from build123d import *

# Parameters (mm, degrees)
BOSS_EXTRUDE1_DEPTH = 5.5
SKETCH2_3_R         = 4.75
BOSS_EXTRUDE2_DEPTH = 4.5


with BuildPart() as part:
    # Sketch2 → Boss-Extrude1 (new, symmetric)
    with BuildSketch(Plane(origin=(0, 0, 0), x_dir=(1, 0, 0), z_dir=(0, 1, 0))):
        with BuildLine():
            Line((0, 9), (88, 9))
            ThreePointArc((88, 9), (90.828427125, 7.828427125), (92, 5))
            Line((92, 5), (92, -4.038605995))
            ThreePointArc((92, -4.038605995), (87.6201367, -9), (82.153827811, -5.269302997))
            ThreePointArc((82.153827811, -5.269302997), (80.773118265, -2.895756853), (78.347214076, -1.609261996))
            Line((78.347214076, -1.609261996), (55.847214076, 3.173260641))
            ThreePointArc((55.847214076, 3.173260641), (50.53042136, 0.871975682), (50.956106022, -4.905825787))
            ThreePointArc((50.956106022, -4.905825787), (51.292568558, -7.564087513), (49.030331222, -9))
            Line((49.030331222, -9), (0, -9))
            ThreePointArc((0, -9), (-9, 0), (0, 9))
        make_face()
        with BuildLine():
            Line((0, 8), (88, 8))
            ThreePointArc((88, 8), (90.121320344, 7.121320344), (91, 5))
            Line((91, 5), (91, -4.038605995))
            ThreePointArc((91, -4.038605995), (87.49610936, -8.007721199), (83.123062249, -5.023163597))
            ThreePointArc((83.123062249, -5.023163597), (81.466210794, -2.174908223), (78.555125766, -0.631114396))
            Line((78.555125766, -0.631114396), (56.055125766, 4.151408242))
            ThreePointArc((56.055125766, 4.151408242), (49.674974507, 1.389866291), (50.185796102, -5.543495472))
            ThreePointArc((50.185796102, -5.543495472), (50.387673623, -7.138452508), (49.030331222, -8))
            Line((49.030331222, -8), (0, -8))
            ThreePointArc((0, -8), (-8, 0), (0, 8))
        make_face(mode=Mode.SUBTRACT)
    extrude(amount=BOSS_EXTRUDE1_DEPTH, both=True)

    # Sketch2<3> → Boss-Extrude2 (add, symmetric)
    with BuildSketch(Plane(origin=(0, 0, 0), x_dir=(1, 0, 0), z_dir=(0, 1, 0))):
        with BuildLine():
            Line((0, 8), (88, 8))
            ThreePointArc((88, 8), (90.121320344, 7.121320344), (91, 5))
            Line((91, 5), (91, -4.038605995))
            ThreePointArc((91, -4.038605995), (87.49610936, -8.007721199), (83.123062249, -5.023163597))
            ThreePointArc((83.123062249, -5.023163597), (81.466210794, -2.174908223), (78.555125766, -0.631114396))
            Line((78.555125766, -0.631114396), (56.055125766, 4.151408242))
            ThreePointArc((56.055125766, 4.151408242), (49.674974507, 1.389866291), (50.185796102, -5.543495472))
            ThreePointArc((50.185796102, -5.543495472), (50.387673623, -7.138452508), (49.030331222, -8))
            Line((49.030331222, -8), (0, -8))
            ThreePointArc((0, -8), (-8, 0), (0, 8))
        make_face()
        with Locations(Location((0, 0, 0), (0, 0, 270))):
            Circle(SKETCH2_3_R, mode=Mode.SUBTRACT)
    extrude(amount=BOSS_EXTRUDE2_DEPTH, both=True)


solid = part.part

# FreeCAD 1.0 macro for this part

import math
import FreeCAD as App
import Part
import Sketcher

V = App.Vector
Q = App.Units.Quantity

doc = App.newDocument("Part")
body = doc.addObject("PartDesign::Body", "Body")

sketch1 = doc.addObject("Sketcher::SketchObject", "Sketch")
body.addObject(sketch1)
sketch1.AttachmentSupport = (doc.XZ_Plane, [""])
sketch1.MapMode = "FlatFace"
sketch1.addGeometry([
    Part.LineSegment(V(88, -9, 0), V(0, -9, 0)),
    Part.ArcOfCircle(Part.Circle(V(0, 0, 0), V(0, 0, 1), 9), math.radians(90), math.radians(270)),
    Part.LineSegment(V(0, 9, 0), V(49.030331, 9, 0)),
    Part.ArcOfCircle(Part.Circle(V(49.030331, 6.5, 0), V(0, 0, 1), 2.5), math.radians(-39.618272), math.radians(90)),
    Part.ArcOfCircle(Part.Circle(V(54.807656, 1.717477, 0), V(0, 0, 1), 5), math.radians(140.381728), math.radians(282)),
    Part.LineSegment(V(55.847214, -3.173261, 0), V(78.347214, 1.609262, 0)),
    Part.ArcOfCircle(Part.Circle(V(77.307656, 6.5, 0), V(0, 0, 1), 5), math.radians(-78), math.radians(-14.249179)),
    Part.ArcOfCircle(Part.Circle(V(87, 4.038606, 0), V(0, 0, 1), 5), math.radians(0), math.radians(165.750821)),
    Part.LineSegment(V(92, 4.038606, 0), V(92, -5, 0)),
    Part.ArcOfCircle(Part.Circle(V(88, -5, 0), V(0, 0, 1), 4), math.radians(-90), math.radians(0)),
    Part.LineSegment(V(0, -8, 0), V(88, -8, 0)),
    Part.ArcOfCircle(Part.Circle(V(88, -5, 0), V(0, 0, 1), 3), math.radians(-90), math.radians(0)),
    Part.LineSegment(V(91, -5, 0), V(91, 4.038606, 0)),
    Part.ArcOfCircle(Part.Circle(V(87, 4.038606, 0), V(0, 0, 1), 4), math.radians(0), math.radians(165.750821)),
    Part.ArcOfCircle(Part.Circle(V(77.307656, 6.5, 0), V(0, 0, 1), 6), math.radians(-78), math.radians(-14.249179)),
    Part.LineSegment(V(78.555126, 0.631114, 0), V(56.055126, -4.151408, 0)),
    Part.ArcOfCircle(Part.Circle(V(54.807656, 1.717477, 0), V(0, 0, 1), 6), math.radians(140.381728), math.radians(282)),
    Part.ArcOfCircle(Part.Circle(V(49.030331, 6.5, 0), V(0, 0, 1), 1.5), math.radians(-39.618272), math.radians(90)),
    Part.LineSegment(V(49.030331, 8, 0), V(0, 8, 0)),
    Part.ArcOfCircle(Part.Circle(V(0, 0, 0), V(0, 0, 1), 8), math.radians(90), math.radians(270)),
], False)
sketch1.addConstraint([
    Sketcher.Constraint("Tangent", 0, 2, 1, 2),
    Sketcher.Constraint("Tangent", 1, 1, 2, 1),
    Sketcher.Constraint("Tangent", 2, 2, 3, 2),
    Sketcher.Constraint("Tangent", 3, 1, 4, 1),
    Sketcher.Constraint("Tangent", 4, 2, 5, 1),
    Sketcher.Constraint("Tangent", 5, 2, 6, 1),
    Sketcher.Constraint("Tangent", 6, 2, 7, 2),
    Sketcher.Constraint("Tangent", 7, 1, 8, 1),
    Sketcher.Constraint("Tangent", 8, 2, 9, 2),
    Sketcher.Constraint("Tangent", 9, 1, 0, 1),
    Sketcher.Constraint("Tangent", 10, 2, 11, 1),
    Sketcher.Constraint("Tangent", 11, 2, 12, 1),
    Sketcher.Constraint("Tangent", 12, 2, 13, 1),
    Sketcher.Constraint("Tangent", 13, 2, 14, 2),
    Sketcher.Constraint("Tangent", 14, 1, 15, 1),
    Sketcher.Constraint("Tangent", 15, 2, 16, 2),
    Sketcher.Constraint("Tangent", 16, 1, 17, 1),
    Sketcher.Constraint("Tangent", 17, 2, 18, 1),
    Sketcher.Constraint("Tangent", 18, 2, 19, 1),
    Sketcher.Constraint("Tangent", 19, 2, 10, 1),
    Sketcher.Constraint("Horizontal", 0),
    Sketcher.Constraint("Horizontal", 2),
    Sketcher.Constraint("Vertical", 8),
    Sketcher.Constraint("Horizontal", 10),
    Sketcher.Constraint("Vertical", 12),
    Sketcher.Constraint("Horizontal", 18),
    Sketcher.Constraint("Coincident", 1, 3, -1, 1),
    Sketcher.Constraint("Coincident", 19, 3, -1, 1),
    Sketcher.Constraint("Coincident", 11, 3, 9, 3),
    Sketcher.Constraint("Coincident", 13, 3, 7, 3),
    Sketcher.Constraint("Coincident", 14, 3, 6, 3),
    Sketcher.Constraint("Coincident", 16, 3, 4, 3),
    Sketcher.Constraint("Coincident", 17, 3, 3, 3),
    Sketcher.Constraint("Equal", 4, 6),
    Sketcher.Constraint("Equal", 6, 7),
    Sketcher.Constraint("Equal", 9, 13),
    Sketcher.Constraint("Horizontal", 3, 3, 6, 3),
    Sketcher.Constraint("Radius", 1, Q("9 mm")),
    Sketcher.Constraint("Radius", 4, Q("5 mm")),
    Sketcher.Constraint("Radius", 9, Q("4 mm")),
    Sketcher.Constraint("Radius", 3, Q("2.5 mm")),
    Sketcher.Constraint("DistanceX", 0, 2, 0, 1, Q("88 mm")),
    Sketcher.Constraint("Angle", 5, Q("12 deg")),
    Sketcher.Constraint("DistanceX", 4, 3, 6, 3, Q("22.5 mm")),
    Sketcher.Constraint("DistanceX", 2, 1, 2, 2, Q("49.030331 mm")),
])
pad1 = doc.addObject("PartDesign::Pad", "Pad")
body.addObject(pad1)
pad1.Profile = sketch1
pad1.Length = 11
pad1.Midplane = True

sketch2 = doc.addObject("Sketcher::SketchObject", "Sketch001")
body.addObject(sketch2)
sketch2.AttachmentSupport = (doc.XZ_Plane, [""])
sketch2.MapMode = "FlatFace"
sketch2.addGeometry([
    Part.LineSegment(V(88, -8, 0), V(0, -8, 0)),
    Part.ArcOfCircle(Part.Circle(V(0, 0, 0), V(0, 0, 1), 8), math.radians(90), math.radians(270)),
    Part.LineSegment(V(0, 8, 0), V(49.030331, 8, 0)),
    Part.ArcOfCircle(Part.Circle(V(49.030331, 6.5, 0), V(0, 0, 1), 1.5), math.radians(-39.618272), math.radians(90)),
    Part.ArcOfCircle(Part.Circle(V(54.807656, 1.717477, 0), V(0, 0, 1), 6), math.radians(140.381728), math.radians(282)),
    Part.LineSegment(V(56.055126, -4.151408, 0), V(78.555126, 0.631114, 0)),
    Part.ArcOfCircle(Part.Circle(V(77.307656, 6.5, 0), V(0, 0, 1), 6), math.radians(-78), math.radians(-14.249179)),
    Part.ArcOfCircle(Part.Circle(V(87, 4.038606, 0), V(0, 0, 1), 4), math.radians(0), math.radians(165.750821)),
    Part.LineSegment(V(91, 4.038606, 0), V(91, -5, 0)),
    Part.ArcOfCircle(Part.Circle(V(88, -5, 0), V(0, 0, 1), 3), math.radians(-90), math.radians(0)),
    Part.Circle(V(0, 0, 0), V(0, 0, 1), 4.75),
], False)
sketch2.addConstraint([
    Sketcher.Constraint("Tangent", 0, 2, 1, 2),
    Sketcher.Constraint("Tangent", 1, 1, 2, 1),
    Sketcher.Constraint("Tangent", 2, 2, 3, 2),
    Sketcher.Constraint("Tangent", 3, 1, 4, 1),
    Sketcher.Constraint("Tangent", 4, 2, 5, 1),
    Sketcher.Constraint("Tangent", 5, 2, 6, 1),
    Sketcher.Constraint("Tangent", 6, 2, 7, 2),
    Sketcher.Constraint("Tangent", 7, 1, 8, 1),
    Sketcher.Constraint("Tangent", 8, 2, 9, 2),
    Sketcher.Constraint("Tangent", 9, 1, 0, 1),
    Sketcher.Constraint("Horizontal", 0),
    Sketcher.Constraint("Horizontal", 2),
    Sketcher.Constraint("Vertical", 8),
    Sketcher.Constraint("Coincident", 1, 3, -1, 1),
    Sketcher.Constraint("Coincident", 10, 3, -1, 1),
    Sketcher.Constraint("Equal", 4, 6),
    Sketcher.Constraint("Horizontal", 3, 3, 6, 3),
    Sketcher.Constraint("Radius", 1, Q("8 mm")),
    Sketcher.Constraint("Radius", 4, Q("6 mm")),
    Sketcher.Constraint("Radius", 7, Q("4 mm")),
    Sketcher.Constraint("Radius", 9, Q("3 mm")),
    Sketcher.Constraint("Diameter", 10, Q("9.5 mm")),
    Sketcher.Constraint("Radius", 3, Q("1.5 mm")),
    Sketcher.Constraint("DistanceX", 0, 2, 0, 1, Q("88 mm")),
    Sketcher.Constraint("Angle", 5, Q("12 deg")),
    Sketcher.Constraint("DistanceX", 4, 3, 6, 3, Q("22.5 mm")),
    Sketcher.Constraint("DistanceX", 2, 1, 2, 2, Q("49.030331 mm")),
])
pad2 = doc.addObject("PartDesign::Pad", "Pad001")
body.addObject(pad2)
pad2.Profile = sketch2
pad2.Length = 9
pad2.Midplane = True

doc.recompute()
